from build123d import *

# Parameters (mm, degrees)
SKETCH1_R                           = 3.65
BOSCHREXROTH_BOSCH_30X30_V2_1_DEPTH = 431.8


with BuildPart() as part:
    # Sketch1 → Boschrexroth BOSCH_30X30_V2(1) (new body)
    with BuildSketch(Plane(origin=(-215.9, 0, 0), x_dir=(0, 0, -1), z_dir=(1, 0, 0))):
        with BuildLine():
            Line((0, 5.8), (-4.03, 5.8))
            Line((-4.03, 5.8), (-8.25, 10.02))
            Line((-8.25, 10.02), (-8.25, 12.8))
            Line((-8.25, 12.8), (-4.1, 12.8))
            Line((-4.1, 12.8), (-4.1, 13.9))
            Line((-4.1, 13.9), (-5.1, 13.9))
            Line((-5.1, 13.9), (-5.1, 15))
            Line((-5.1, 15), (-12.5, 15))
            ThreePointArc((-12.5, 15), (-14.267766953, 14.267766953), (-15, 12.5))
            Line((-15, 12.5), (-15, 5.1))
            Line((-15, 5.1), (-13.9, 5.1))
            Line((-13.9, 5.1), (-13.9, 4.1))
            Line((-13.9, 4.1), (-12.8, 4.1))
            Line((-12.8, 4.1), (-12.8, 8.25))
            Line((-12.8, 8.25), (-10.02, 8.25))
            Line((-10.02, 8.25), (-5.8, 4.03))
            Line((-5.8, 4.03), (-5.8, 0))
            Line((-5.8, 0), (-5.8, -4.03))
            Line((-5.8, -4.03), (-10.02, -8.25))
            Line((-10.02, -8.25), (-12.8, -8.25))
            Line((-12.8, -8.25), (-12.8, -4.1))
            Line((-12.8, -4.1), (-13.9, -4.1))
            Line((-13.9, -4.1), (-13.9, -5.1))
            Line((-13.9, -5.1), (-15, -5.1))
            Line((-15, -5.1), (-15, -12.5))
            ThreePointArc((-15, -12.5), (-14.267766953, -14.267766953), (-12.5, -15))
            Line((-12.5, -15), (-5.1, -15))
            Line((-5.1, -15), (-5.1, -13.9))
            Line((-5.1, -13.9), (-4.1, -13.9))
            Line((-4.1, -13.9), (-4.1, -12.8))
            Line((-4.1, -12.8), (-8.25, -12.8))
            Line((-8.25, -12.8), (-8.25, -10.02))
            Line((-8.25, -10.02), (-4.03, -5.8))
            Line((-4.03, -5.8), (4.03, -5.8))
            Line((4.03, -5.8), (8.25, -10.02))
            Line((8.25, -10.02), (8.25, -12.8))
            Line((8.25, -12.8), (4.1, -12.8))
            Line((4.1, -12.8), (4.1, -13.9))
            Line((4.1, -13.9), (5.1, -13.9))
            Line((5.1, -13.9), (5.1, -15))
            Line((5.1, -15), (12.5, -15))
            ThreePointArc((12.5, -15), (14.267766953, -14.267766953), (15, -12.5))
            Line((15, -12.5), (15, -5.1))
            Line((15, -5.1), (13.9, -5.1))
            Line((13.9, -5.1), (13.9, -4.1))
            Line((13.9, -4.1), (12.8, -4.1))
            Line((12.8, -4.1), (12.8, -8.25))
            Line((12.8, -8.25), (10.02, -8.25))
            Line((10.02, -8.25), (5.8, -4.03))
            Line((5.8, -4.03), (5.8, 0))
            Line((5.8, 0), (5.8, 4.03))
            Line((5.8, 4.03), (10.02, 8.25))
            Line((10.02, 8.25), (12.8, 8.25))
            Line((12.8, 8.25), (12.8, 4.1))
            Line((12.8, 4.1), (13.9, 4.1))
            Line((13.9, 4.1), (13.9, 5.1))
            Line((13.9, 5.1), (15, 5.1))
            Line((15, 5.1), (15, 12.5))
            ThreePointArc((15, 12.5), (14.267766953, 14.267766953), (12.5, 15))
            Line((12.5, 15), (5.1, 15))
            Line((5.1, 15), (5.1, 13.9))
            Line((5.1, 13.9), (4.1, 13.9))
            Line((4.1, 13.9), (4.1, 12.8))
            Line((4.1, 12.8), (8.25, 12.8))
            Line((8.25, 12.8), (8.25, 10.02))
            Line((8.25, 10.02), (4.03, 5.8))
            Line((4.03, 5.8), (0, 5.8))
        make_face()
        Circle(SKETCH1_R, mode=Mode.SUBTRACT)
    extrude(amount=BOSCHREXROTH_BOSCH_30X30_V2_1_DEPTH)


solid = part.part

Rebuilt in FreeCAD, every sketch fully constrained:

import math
import FreeCAD as App
import Part
import Sketcher

V = App.Vector

doc = App.newDocument("Part")
body = doc.addObject("PartDesign::Body", "Body")

# Sketch on YZ plane
sketch1 = body.newObject("Sketcher::SketchObject", "Sketch")
sketch1.AttachmentSupport = (doc.getObject("YZ_Plane"), [""])
sketch1.MapMode = "FlatFace"
sketch1.AttachmentOffset = App.Placement(V(0, 0, -215.9), App.Rotation())
sketch1.addGeometry(Part.LineSegment(V(5.8, 4.03, 0), V(10.02, 8.25, 0)), False)
sketch1.addGeometry(Part.LineSegment(V(10.02, 8.25, 0), V(12.8, 8.25, 0)), False)
sketch1.addGeometry(Part.LineSegment(V(12.8, 8.25, 0), V(12.8, 4.1, 0)), False)
sketch1.addGeometry(Part.LineSegment(V(12.8, 4.1, 0), V(13.9, 4.1, 0)), False)
sketch1.addGeometry(Part.LineSegment(V(13.9, 4.1, 0), V(13.9, 5.1, 0)), False)
sketch1.addGeometry(Part.LineSegment(V(13.9, 5.1, 0), V(15, 5.1, 0)), False)
sketch1.addGeometry(Part.LineSegment(V(15, 5.1, 0), V(15, 12.5, 0)), False)
sketch1.addGeometry(Part.ArcOfCircle(Part.Circle(V(12.5, 12.5, 0), V(0, 0, 1), 2.5), math.radians(0), math.radians(90)), False)
sketch1.addGeometry(Part.LineSegment(V(12.5, 15, 0), V(5.1, 15, 0)), False)
sketch1.addGeometry(Part.LineSegment(V(5.1, 15, 0), V(5.1, 13.9, 0)), False)
sketch1.addGeometry(Part.LineSegment(V(5.1, 13.9, 0), V(4.1, 13.9, 0)), False)
sketch1.addGeometry(Part.LineSegment(V(4.1, 13.9, 0), V(4.1, 12.8, 0)), False)
sketch1.addGeometry(Part.LineSegment(V(4.1, 12.8, 0), V(8.25, 12.8, 0)), False)
sketch1.addGeometry(Part.LineSegment(V(8.25, 12.8, 0), V(8.25, 10.02, 0)), False)
sketch1.addGeometry(Part.LineSegment(V(8.25, 10.02, 0), V(4.03, 5.8, 0)), False)
sketch1.addGeometry(Part.LineSegment(V(4.03, 5.8, 0), V(-4.03, 5.8, 0)), False)
sketch1.addGeometry(Part.LineSegment(V(-4.03, 5.8, 0), V(-8.25, 10.02, 0)), False)
sketch1.addGeometry(Part.LineSegment(V(-8.25, 10.02, 0), V(-8.25, 12.8, 0)), False)
sketch1.addGeometry(Part.LineSegment(V(-8.25, 12.8, 0), V(-4.1, 12.8, 0)), False)
sketch1.addGeometry(Part.LineSegment(V(-4.1, 12.8, 0), V(-4.1, 13.9, 0)), False)
sketch1.addGeometry(Part.LineSegment(V(-4.1, 13.9, 0), V(-5.1, 13.9, 0)), False)
sketch1.addGeometry(Part.LineSegment(V(-5.1, 13.9, 0), V(-5.1, 15, 0)), False)
sketch1.addGeometry(Part.LineSegment(V(-5.1, 15, 0), V(-12.5, 15, 0)), False)
sketch1.addGeometry(Part.ArcOfCircle(Part.Circle(V(-12.5, 12.5, 0), V(0, 0, 1), 2.5), math.radians(90), math.radians(180)), False)
sketch1.addGeometry(Part.LineSegment(V(-15, 12.5, 0), V(-15, 5.1, 0)), False)
sketch1.addGeometry(Part.LineSegment(V(-15, 5.1, 0), V(-13.9, 5.1, 0)), False)
sketch1.addGeometry(Part.LineSegment(V(-13.9, 5.1, 0), V(-13.9, 4.1, 0)), False)
sketch1.addGeometry(Part.LineSegment(V(-13.9, 4.1, 0), V(-12.8, 4.1, 0)), False)
sketch1.addGeometry(Part.LineSegment(V(-12.8, 4.1, 0), V(-12.8, 8.25, 0)), False)
sketch1.addGeometry(Part.LineSegment(V(-12.8, 8.25, 0), V(-10.02, 8.25, 0)), False)
sketch1.addGeometry(Part.LineSegment(V(-10.02, 8.25, 0), V(-5.8, 4.03, 0)), False)
sketch1.addGeometry(Part.LineSegment(V(-5.8, 4.03, 0), V(-5.8, -4.03, 0)), False)
sketch1.addGeometry(Part.LineSegment(V(-5.8, -4.03, 0), V(-10.02, -8.25, 0)), False)
sketch1.addGeometry(Part.LineSegment(V(-10.02, -8.25, 0), V(-12.8, -8.25, 0)), False)
sketch1.addGeometry(Part.LineSegment(V(-12.8, -8.25, 0), V(-12.8, -4.1, 0)), False)
sketch1.addGeometry(Part.LineSegment(V(-12.8, -4.1, 0), V(-13.9, -4.1, 0)), False)
sketch1.addGeometry(Part.LineSegment(V(-13.9, -4.1, 0), V(-13.9, -5.1, 0)), False)
sketch1.addGeometry(Part.LineSegment(V(-13.9, -5.1, 0), V(-15, -5.1, 0)), False)
sketch1.addGeometry(Part.LineSegment(V(-15, -5.1, 0), V(-15, -12.5, 0)), False)
sketch1.addGeometry(Part.ArcOfCircle(Part.Circle(V(-12.5, -12.5, 0), V(0, 0, 1), 2.5), math.radians(180), math.radians(270)), False)
sketch1.addGeometry(Part.LineSegment(V(-12.5, -15, 0), V(-5.1, -15, 0)), False)
sketch1.addGeometry(Part.LineSegment(V(-5.1, -15, 0), V(-5.1, -13.9, 0)), False)
sketch1.addGeometry(Part.LineSegment(V(-5.1, -13.9, 0), V(-4.1, -13.9, 0)), False)
sketch1.addGeometry(Part.LineSegment(V(-4.1, -13.9, 0), V(-4.1, -12.8, 0)), False)
sketch1.addGeometry(Part.LineSegment(V(-4.1, -12.8, 0), V(-8.25, -12.8, 0)), False)
sketch1.addGeometry(Part.LineSegment(V(-8.25, -12.8, 0), V(-8.25, -10.02, 0)), False)
sketch1.addGeometry(Part.LineSegment(V(-8.25, -10.02, 0), V(-4.03, -5.8, 0)), False)
sketch1.addGeometry(Part.LineSegment(V(-4.03, -5.8, 0), V(4.03, -5.8, 0)), False)
sketch1.addGeometry(Part.LineSegment(V(4.03, -5.8, 0), V(8.25, -10.02, 0)), False)
sketch1.addGeometry(Part.LineSegment(V(8.25, -10.02, 0), V(8.25, -12.8, 0)), False)
sketch1.addGeometry(Part.LineSegment(V(8.25, -12.8, 0), V(4.1, -12.8, 0)), False)
sketch1.addGeometry(Part.LineSegment(V(4.1, -12.8, 0), V(4.1, -13.9, 0)), False)
sketch1.addGeometry(Part.LineSegment(V(4.1, -13.9, 0), V(5.1, -13.9, 0)), False)
sketch1.addGeometry(Part.LineSegment(V(5.1, -13.9, 0), V(5.1, -15, 0)), False)
sketch1.addGeometry(Part.LineSegment(V(5.1, -15, 0), V(12.5, -15, 0)), False)
sketch1.addGeometry(Part.ArcOfCircle(Part.Circle(V(12.5, -12.5, 0), V(0, 0, 1), 2.5), math.radians(-90), math.radians(0)), False)
sketch1.addGeometry(Part.LineSegment(V(15, -12.5, 0), V(15, -5.1, 0)), False)
sketch1.addGeometry(Part.LineSegment(V(15, -5.1, 0), V(13.9, -5.1, 0)), False)
sketch1.addGeometry(Part.LineSegment(V(13.9, -5.1, 0), V(13.9, -4.1, 0)), False)
sketch1.addGeometry(Part.LineSegment(V(13.9, -4.1, 0), V(12.8, -4.1, 0)), False)
sketch1.addGeometry(Part.LineSegment(V(12.8, -4.1, 0), V(12.8, -8.25, 0)), False)
sketch1.addGeometry(Part.LineSegment(V(12.8, -8.25, 0), V(10.02, -8.25, 0)), False)
sketch1.addGeometry(Part.LineSegment(V(10.02, -8.25, 0), V(5.8, -4.03, 0)), False)
sketch1.addGeometry(Part.LineSegment(V(5.8, -4.03, 0), V(5.8, 4.03, 0)), False)
sketch1.addGeometry(Part.Circle(V(0, 0, 0), V(0, 0, 1), 3.65), False)
sketch1.addConstraint(Sketcher.Constraint("Coincident", 0, 2, 1, 1))
sketch1.addConstraint(Sketcher.Constraint("Coincident", 1, 2, 2, 1))
sketch1.addConstraint(Sketcher.Constraint("Coincident", 2, 2, 3, 1))
sketch1.addConstraint(Sketcher.Constraint("Coincident", 3, 2, 4, 1))
sketch1.addConstraint(Sketcher.Constraint("Coincident", 4, 2, 5, 1))
sketch1.addConstraint(Sketcher.Constraint("Coincident", 5, 2, 6, 1))
sketch1.addConstraint(Sketcher.Constraint("Tangent", 6, 2, 7, 1))
sketch1.addConstraint(Sketcher.Constraint("Tangent", 7, 2, 8, 1))
sketch1.addConstraint(Sketcher.Constraint("Coincident", 8, 2, 9, 1))
sketch1.addConstraint(Sketcher.Constraint("Coincident", 9, 2, 10, 1))
sketch1.addConstraint(Sketcher.Constraint("Coincident", 10, 2, 11, 1))
sketch1.addConstraint(Sketcher.Constraint("Coincident", 11, 2, 12, 1))
sketch1.addConstraint(Sketcher.Constraint("Coincident", 12, 2, 13, 1))
sketch1.addConstraint(Sketcher.Constraint("Coincident", 13, 2, 14, 1))
sketch1.addConstraint(Sketcher.Constraint("Coincident", 14, 2, 15, 1))
sketch1.addConstraint(Sketcher.Constraint("Coincident", 15, 2, 16, 1))
sketch1.addConstraint(Sketcher.Constraint("Coincident", 16, 2, 17, 1))
sketch1.addConstraint(Sketcher.Constraint("Coincident", 17, 2, 18, 1))
sketch1.addConstraint(Sketcher.Constraint("Coincident", 18, 2, 19, 1))
sketch1.addConstraint(Sketcher.Constraint("Coincident", 19, 2, 20, 1))
sketch1.addConstraint(Sketcher.Constraint("Coincident", 20, 2, 21, 1))
sketch1.addConstraint(Sketcher.Constraint("Coincident", 21, 2, 22, 1))
sketch1.addConstraint(Sketcher.Constraint("Tangent", 22, 2, 23, 1))
sketch1.addConstraint(Sketcher.Constraint("Tangent", 23, 2, 24, 1))
sketch1.addConstraint(Sketcher.Constraint("Coincident", 24, 2, 25, 1))
sketch1.addConstraint(Sketcher.Constraint("Coincident", 25, 2, 26, 1))
sketch1.addConstraint(Sketcher.Constraint("Coincident", 26, 2, 27, 1))
sketch1.addConstraint(Sketcher.Constraint("Coincident", 27, 2, 28, 1))
sketch1.addConstraint(Sketcher.Constraint("Coincident", 28, 2, 29, 1))
sketch1.addConstraint(Sketcher.Constraint("Coincident", 29, 2, 30, 1))
sketch1.addConstraint(Sketcher.Constraint("Coincident", 30, 2, 31, 1))
sketch1.addConstraint(Sketcher.Constraint("Coincident", 31, 2, 32, 1))
sketch1.addConstraint(Sketcher.Constraint("Coincident", 32, 2, 33, 1))
sketch1.addConstraint(Sketcher.Constraint("Coincident", 33, 2, 34, 1))
sketch1.addConstraint(Sketcher.Constraint("Coincident", 34, 2, 35, 1))
sketch1.addConstraint(Sketcher.Constraint("Coincident", 35, 2, 36, 1))
sketch1.addConstraint(Sketcher.Constraint("Coincident", 36, 2, 37, 1))
sketch1.addConstraint(Sketcher.Constraint("Coincident", 37, 2, 38, 1))
sketch1.addConstraint(Sketcher.Constraint("Tangent", 38, 2, 39, 1))
sketch1.addConstraint(Sketcher.Constraint("Tangent", 39, 2, 40, 1))
sketch1.addConstraint(Sketcher.Constraint("Coincident", 40, 2, 41, 1))
sketch1.addConstraint(Sketcher.Constraint("Coincident", 41, 2, 42, 1))
sketch1.addConstraint(Sketcher.Constraint("Coincident", 42, 2, 43, 1))
sketch1.addConstraint(Sketcher.Constraint("Coincident", 43, 2, 44, 1))
sketch1.addConstraint(Sketcher.Constraint("Coincident", 44, 2, 45, 1))
sketch1.addConstraint(Sketcher.Constraint("Coincident", 45, 2, 46, 1))
sketch1.addConstraint(Sketcher.Constraint("Coincident", 46, 2, 47, 1))
sketch1.addConstraint(Sketcher.Constraint("Coincident", 47, 2, 48, 1))
sketch1.addConstraint(Sketcher.Constraint("Coincident", 48, 2, 49, 1))
sketch1.addConstraint(Sketcher.Constraint("Coincident", 49, 2, 50, 1))
sketch1.addConstraint(Sketcher.Constraint("Coincident", 50, 2, 51, 1))
sketch1.addConstraint(Sketcher.Constraint("Coincident", 51, 2, 52, 1))
sketch1.addConstraint(Sketcher.Constraint("Coincident", 52, 2, 53, 1))
sketch1.addConstraint(Sketcher.Constraint("Coincident", 53, 2, 54, 1))
sketch1.addConstraint(Sketcher.Constraint("Tangent", 54, 2, 55, 1))
sketch1.addConstraint(Sketcher.Constraint("Tangent", 55, 2, 56, 1))
sketch1.addConstraint(Sketcher.Constraint("Coincident", 56, 2, 57, 1))
sketch1.addConstraint(Sketcher.Constraint("Coincident", 57, 2, 58, 1))
sketch1.addConstraint(Sketcher.Constraint("Coincident", 58, 2, 59, 1))
sketch1.addConstraint(Sketcher.Constraint("Coincident", 59, 2, 60, 1))
sketch1.addConstraint(Sketcher.Constraint("Coincident", 60, 2, 61, 1))
sketch1.addConstraint(Sketcher.Constraint("Coincident", 61, 2, 62, 1))
sketch1.addConstraint(Sketcher.Constraint("Coincident", 62, 2, 63, 1))
sketch1.addConstraint(Sketcher.Constraint("Coincident", 63, 2, 0, 1))
sketch1.addConstraint(Sketcher.Constraint("Horizontal", 1))
sketch1.addConstraint(Sketcher.Constraint("Vertical", 2))
sketch1.addConstraint(Sketcher.Constraint("Horizontal", 3))
sketch1.addConstraint(Sketcher.Constraint("Vertical", 4))
sketch1.addConstraint(Sketcher.Constraint("Horizontal", 5))
sketch1.addConstraint(Sketcher.Constraint("Vertical", 6))
sketch1.addConstraint(Sketcher.Constraint("Horizontal", 8))
sketch1.addConstraint(Sketcher.Constraint("Vertical", 9))
sketch1.addConstraint(Sketcher.Constraint("Horizontal", 10))
sketch1.addConstraint(Sketcher.Constraint("Vertical", 11))
sketch1.addConstraint(Sketcher.Constraint("Horizontal", 12))
sketch1.addConstraint(Sketcher.Constraint("Vertical", 13))
sketch1.addConstraint(Sketcher.Constraint("Horizontal", 15))
sketch1.addConstraint(Sketcher.Constraint("Vertical", 17))
sketch1.addConstraint(Sketcher.Constraint("Horizontal", 18))
sketch1.addConstraint(Sketcher.Constraint("Vertical", 19))
sketch1.addConstraint(Sketcher.Constraint("Horizontal", 20))
sketch1.addConstraint(Sketcher.Constraint("Vertical", 21))
sketch1.addConstraint(Sketcher.Constraint("Horizontal", 22))
sketch1.addConstraint(Sketcher.Constraint("Vertical", 24))
sketch1.addConstraint(Sketcher.Constraint("Horizontal", 25))
sketch1.addConstraint(Sketcher.Constraint("Vertical", 26))
sketch1.addConstraint(Sketcher.Constraint("Horizontal", 27))
sketch1.addConstraint(Sketcher.Constraint("Vertical", 28))
sketch1.addConstraint(Sketcher.Constraint("Horizontal", 29))
sketch1.addConstraint(Sketcher.Constraint("Vertical", 31))
sketch1.addConstraint(Sketcher.Constraint("Horizontal", 33))
sketch1.addConstraint(Sketcher.Constraint("Vertical", 34))
sketch1.addConstraint(Sketcher.Constraint("Horizontal", 35))
sketch1.addConstraint(Sketcher.Constraint("Vertical", 36))
sketch1.addConstraint(Sketcher.Constraint("Horizontal", 37))
sketch1.addConstraint(Sketcher.Constraint("Vertical", 38))
sketch1.addConstraint(Sketcher.Constraint("Horizontal", 40))
sketch1.addConstraint(Sketcher.Constraint("Vertical", 41))
sketch1.addConstraint(Sketcher.Constraint("Horizontal", 42))
sketch1.addConstraint(Sketcher.Constraint("Vertical", 43))
sketch1.addConstraint(Sketcher.Constraint("Horizontal", 44))
sketch1.addConstraint(Sketcher.Constraint("Vertical", 45))
sketch1.addConstraint(Sketcher.Constraint("Horizontal", 47))
sketch1.addConstraint(Sketcher.Constraint("Vertical", 49))
sketch1.addConstraint(Sketcher.Constraint("Horizontal", 50))
sketch1.addConstraint(Sketcher.Constraint("Vertical", 51))
sketch1.addConstraint(Sketcher.Constraint("Horizontal", 52))
sketch1.addConstraint(Sketcher.Constraint("Vertical", 53))
sketch1.addConstraint(Sketcher.Constraint("Horizontal", 54))
sketch1.addConstraint(Sketcher.Constraint("Vertical", 56))
sketch1.addConstraint(Sketcher.Constraint("Horizontal", 57))
sketch1.addConstraint(Sketcher.Constraint("Vertical", 58))
sketch1.addConstraint(Sketcher.Constraint("Horizontal", 59))
sketch1.addConstraint(Sketcher.Constraint("Vertical", 60))
sketch1.addConstraint(Sketcher.Constraint("Horizontal", 61))
sketch1.addConstraint(Sketcher.Constraint("Vertical", 63))
sketch1.addConstraint(Sketcher.Constraint("Coincident", 64, 3, -1, 1))
sketch1.addConstraint(Sketcher.Constraint("Equal", 7, 23))
sketch1.addConstraint(Sketcher.Constraint("Equal", 23, 39))
sketch1.addConstraint(Sketcher.Constraint("Equal", 39, 55))
sketch1.addConstraint(Sketcher.Constraint("Symmetric", 7, 3, 39, 3, -1, 1))
sketch1.addConstraint(Sketcher.Constraint("Symmetric", 23, 3, 55, 3, -1, 1))
sketch1.addConstraint(Sketcher.Constraint("Symmetric", 0, 2, 32, 2, -1, 1))
sketch1.addConstraint(Sketcher.Constraint("Symmetric", 2, 2, 34, 2, -1, 1))
sketch1.addConstraint(Sketcher.Constraint("Symmetric", 4, 2, 36, 2, -1, 1))
sketch1.addConstraint(Sketcher.Constraint("Symmetric", 9, 2, 41, 2, -1, 1))
sketch1.addConstraint(Sketcher.Constraint("Symmetric", 11, 2, 43, 2, -1, 1))
sketch1.addConstraint(Sketcher.Constraint("Symmetric", 13, 2, 45, 2, -1, 1))
sketch1.addConstraint(Sketcher.Constraint("Symmetric", 14, 2, 46, 2, -1, 1))
sketch1.addConstraint(Sketcher.Constraint("Symmetric", 16, 2, 48, 2, -1, 1))
sketch1.addConstraint(Sketcher.Constraint("Symmetric", 18, 2, 50, 2, -1, 1))
sketch1.addConstraint(Sketcher.Constraint("Symmetric", 20, 2, 52, 2, -1, 1))
sketch1.addConstraint(Sketcher.Constraint("Symmetric", 25, 2, 57, 2, -1, 1))
sketch1.addConstraint(Sketcher.Constraint("Symmetric", 27, 2, 59, 2, -1, 1))
sketch1.addConstraint(Sketcher.Constraint("Symmetric", 29, 2, 61, 2, -1, 1))
sketch1.addConstraint(Sketcher.Constraint("Symmetric", 30, 2, 62, 2, -1, 1))
sketch1.addConstraint(Sketcher.Constraint("Symmetric", 7, 3, 23, 3, -2))
sketch1.addConstraint(Sketcher.Constraint("Symmetric", 13, 2, 16, 2, -2))
sketch1.addConstraint(Sketcher.Constraint("Symmetric", 11, 2, 18, 2, -2))
sketch1.addConstraint(Sketcher.Constraint("Symmetric", 9, 2, 20, 2, -2))
sketch1.addConstraint(Sketcher.Constraint("Symmetric", 4, 2, 25, 2, -2))
sketch1.addConstraint(Sketcher.Constraint("Symmetric", 2, 2, 27, 2, -2))
sketch1.addConstraint(Sketcher.Constraint("Symmetric", 0, 2, 29, 2, -2))
sketch1.addConstraint(Sketcher.Constraint("Parallel", 0, 14))
sketch1.addConstraint(Sketcher.Constraint("Perpendicular", 14, 16))
sketch1.addConstraint(Sketcher.Constraint("Parallel", 16, 30))
sketch1.addConstraint(Sketcher.Constraint("Perpendicular", 30, 32))
sketch1.addConstraint(Sketcher.Constraint("Perpendicular", 46, 48))
sketch1.addConstraint(Sketcher.Constraint("Horizontal", 31, 2, 62, 2))
sketch1.addConstraint(Sketcher.Constraint("Equal", 3, 5))
sketch1.addConstraint(Sketcher.Constraint("Equal", 50, 2))
sketch1.addConstraint(Sketcher.Constraint("Equal", 52, 4))
sketch1.addConstraint(Sketcher.Constraint("Equal", 54, 6))
sketch1.addConstraint(Sketcher.Constraint("Equal", 59, 9))
sketch1.addConstraint(Sketcher.Constraint("Equal", 9, 11))
sketch1.addConstraint(Sketcher.Constraint("Equal", 61, 13))
sketch1.addConstraint(Sketcher.Constraint("Equal", 47, 31))
sketch1.addConstraint(Sketcher.Constraint("Equal", 0, 14))
sketch1.addConstraint(Sketcher.Constraint("Diameter", 64, 7.3))
sketch1.addConstraint(Sketcher.Constraint("Radius", 7, 2.5))
sketch1.addConstraint(Sketcher.Constraint("DistanceX", 10, 2, 10, 1, 1.0))
sketch1.addConstraint(Sketcher.Constraint("DistanceX", 3, 1, 3, 2, 1.1))
sketch1.addConstraint(Sketcher.Constraint("DistanceX", 8, 2, 8, 1, 7.4))
sketch1.addConstraint(Sketcher.Constraint("DistanceX", -1, 1, 5, 2, 15.0))
sketch1.addConstraint(Sketcher.Constraint("DistanceX", 1, 1, 1, 2, 2.78))
sketch1.addConstraint(Sketcher.Constraint("DistanceX", 12, 1, 12, 2, 4.15))
sketch1.addConstraint(Sketcher.Constraint("DistanceX", 15, 2, 15, 1, 8.06))
pad1 = body.newObject("PartDesign::Pad", "Pad")
pad1.Profile = sketch1
pad1.Length = 431.8

doc.recompute()
